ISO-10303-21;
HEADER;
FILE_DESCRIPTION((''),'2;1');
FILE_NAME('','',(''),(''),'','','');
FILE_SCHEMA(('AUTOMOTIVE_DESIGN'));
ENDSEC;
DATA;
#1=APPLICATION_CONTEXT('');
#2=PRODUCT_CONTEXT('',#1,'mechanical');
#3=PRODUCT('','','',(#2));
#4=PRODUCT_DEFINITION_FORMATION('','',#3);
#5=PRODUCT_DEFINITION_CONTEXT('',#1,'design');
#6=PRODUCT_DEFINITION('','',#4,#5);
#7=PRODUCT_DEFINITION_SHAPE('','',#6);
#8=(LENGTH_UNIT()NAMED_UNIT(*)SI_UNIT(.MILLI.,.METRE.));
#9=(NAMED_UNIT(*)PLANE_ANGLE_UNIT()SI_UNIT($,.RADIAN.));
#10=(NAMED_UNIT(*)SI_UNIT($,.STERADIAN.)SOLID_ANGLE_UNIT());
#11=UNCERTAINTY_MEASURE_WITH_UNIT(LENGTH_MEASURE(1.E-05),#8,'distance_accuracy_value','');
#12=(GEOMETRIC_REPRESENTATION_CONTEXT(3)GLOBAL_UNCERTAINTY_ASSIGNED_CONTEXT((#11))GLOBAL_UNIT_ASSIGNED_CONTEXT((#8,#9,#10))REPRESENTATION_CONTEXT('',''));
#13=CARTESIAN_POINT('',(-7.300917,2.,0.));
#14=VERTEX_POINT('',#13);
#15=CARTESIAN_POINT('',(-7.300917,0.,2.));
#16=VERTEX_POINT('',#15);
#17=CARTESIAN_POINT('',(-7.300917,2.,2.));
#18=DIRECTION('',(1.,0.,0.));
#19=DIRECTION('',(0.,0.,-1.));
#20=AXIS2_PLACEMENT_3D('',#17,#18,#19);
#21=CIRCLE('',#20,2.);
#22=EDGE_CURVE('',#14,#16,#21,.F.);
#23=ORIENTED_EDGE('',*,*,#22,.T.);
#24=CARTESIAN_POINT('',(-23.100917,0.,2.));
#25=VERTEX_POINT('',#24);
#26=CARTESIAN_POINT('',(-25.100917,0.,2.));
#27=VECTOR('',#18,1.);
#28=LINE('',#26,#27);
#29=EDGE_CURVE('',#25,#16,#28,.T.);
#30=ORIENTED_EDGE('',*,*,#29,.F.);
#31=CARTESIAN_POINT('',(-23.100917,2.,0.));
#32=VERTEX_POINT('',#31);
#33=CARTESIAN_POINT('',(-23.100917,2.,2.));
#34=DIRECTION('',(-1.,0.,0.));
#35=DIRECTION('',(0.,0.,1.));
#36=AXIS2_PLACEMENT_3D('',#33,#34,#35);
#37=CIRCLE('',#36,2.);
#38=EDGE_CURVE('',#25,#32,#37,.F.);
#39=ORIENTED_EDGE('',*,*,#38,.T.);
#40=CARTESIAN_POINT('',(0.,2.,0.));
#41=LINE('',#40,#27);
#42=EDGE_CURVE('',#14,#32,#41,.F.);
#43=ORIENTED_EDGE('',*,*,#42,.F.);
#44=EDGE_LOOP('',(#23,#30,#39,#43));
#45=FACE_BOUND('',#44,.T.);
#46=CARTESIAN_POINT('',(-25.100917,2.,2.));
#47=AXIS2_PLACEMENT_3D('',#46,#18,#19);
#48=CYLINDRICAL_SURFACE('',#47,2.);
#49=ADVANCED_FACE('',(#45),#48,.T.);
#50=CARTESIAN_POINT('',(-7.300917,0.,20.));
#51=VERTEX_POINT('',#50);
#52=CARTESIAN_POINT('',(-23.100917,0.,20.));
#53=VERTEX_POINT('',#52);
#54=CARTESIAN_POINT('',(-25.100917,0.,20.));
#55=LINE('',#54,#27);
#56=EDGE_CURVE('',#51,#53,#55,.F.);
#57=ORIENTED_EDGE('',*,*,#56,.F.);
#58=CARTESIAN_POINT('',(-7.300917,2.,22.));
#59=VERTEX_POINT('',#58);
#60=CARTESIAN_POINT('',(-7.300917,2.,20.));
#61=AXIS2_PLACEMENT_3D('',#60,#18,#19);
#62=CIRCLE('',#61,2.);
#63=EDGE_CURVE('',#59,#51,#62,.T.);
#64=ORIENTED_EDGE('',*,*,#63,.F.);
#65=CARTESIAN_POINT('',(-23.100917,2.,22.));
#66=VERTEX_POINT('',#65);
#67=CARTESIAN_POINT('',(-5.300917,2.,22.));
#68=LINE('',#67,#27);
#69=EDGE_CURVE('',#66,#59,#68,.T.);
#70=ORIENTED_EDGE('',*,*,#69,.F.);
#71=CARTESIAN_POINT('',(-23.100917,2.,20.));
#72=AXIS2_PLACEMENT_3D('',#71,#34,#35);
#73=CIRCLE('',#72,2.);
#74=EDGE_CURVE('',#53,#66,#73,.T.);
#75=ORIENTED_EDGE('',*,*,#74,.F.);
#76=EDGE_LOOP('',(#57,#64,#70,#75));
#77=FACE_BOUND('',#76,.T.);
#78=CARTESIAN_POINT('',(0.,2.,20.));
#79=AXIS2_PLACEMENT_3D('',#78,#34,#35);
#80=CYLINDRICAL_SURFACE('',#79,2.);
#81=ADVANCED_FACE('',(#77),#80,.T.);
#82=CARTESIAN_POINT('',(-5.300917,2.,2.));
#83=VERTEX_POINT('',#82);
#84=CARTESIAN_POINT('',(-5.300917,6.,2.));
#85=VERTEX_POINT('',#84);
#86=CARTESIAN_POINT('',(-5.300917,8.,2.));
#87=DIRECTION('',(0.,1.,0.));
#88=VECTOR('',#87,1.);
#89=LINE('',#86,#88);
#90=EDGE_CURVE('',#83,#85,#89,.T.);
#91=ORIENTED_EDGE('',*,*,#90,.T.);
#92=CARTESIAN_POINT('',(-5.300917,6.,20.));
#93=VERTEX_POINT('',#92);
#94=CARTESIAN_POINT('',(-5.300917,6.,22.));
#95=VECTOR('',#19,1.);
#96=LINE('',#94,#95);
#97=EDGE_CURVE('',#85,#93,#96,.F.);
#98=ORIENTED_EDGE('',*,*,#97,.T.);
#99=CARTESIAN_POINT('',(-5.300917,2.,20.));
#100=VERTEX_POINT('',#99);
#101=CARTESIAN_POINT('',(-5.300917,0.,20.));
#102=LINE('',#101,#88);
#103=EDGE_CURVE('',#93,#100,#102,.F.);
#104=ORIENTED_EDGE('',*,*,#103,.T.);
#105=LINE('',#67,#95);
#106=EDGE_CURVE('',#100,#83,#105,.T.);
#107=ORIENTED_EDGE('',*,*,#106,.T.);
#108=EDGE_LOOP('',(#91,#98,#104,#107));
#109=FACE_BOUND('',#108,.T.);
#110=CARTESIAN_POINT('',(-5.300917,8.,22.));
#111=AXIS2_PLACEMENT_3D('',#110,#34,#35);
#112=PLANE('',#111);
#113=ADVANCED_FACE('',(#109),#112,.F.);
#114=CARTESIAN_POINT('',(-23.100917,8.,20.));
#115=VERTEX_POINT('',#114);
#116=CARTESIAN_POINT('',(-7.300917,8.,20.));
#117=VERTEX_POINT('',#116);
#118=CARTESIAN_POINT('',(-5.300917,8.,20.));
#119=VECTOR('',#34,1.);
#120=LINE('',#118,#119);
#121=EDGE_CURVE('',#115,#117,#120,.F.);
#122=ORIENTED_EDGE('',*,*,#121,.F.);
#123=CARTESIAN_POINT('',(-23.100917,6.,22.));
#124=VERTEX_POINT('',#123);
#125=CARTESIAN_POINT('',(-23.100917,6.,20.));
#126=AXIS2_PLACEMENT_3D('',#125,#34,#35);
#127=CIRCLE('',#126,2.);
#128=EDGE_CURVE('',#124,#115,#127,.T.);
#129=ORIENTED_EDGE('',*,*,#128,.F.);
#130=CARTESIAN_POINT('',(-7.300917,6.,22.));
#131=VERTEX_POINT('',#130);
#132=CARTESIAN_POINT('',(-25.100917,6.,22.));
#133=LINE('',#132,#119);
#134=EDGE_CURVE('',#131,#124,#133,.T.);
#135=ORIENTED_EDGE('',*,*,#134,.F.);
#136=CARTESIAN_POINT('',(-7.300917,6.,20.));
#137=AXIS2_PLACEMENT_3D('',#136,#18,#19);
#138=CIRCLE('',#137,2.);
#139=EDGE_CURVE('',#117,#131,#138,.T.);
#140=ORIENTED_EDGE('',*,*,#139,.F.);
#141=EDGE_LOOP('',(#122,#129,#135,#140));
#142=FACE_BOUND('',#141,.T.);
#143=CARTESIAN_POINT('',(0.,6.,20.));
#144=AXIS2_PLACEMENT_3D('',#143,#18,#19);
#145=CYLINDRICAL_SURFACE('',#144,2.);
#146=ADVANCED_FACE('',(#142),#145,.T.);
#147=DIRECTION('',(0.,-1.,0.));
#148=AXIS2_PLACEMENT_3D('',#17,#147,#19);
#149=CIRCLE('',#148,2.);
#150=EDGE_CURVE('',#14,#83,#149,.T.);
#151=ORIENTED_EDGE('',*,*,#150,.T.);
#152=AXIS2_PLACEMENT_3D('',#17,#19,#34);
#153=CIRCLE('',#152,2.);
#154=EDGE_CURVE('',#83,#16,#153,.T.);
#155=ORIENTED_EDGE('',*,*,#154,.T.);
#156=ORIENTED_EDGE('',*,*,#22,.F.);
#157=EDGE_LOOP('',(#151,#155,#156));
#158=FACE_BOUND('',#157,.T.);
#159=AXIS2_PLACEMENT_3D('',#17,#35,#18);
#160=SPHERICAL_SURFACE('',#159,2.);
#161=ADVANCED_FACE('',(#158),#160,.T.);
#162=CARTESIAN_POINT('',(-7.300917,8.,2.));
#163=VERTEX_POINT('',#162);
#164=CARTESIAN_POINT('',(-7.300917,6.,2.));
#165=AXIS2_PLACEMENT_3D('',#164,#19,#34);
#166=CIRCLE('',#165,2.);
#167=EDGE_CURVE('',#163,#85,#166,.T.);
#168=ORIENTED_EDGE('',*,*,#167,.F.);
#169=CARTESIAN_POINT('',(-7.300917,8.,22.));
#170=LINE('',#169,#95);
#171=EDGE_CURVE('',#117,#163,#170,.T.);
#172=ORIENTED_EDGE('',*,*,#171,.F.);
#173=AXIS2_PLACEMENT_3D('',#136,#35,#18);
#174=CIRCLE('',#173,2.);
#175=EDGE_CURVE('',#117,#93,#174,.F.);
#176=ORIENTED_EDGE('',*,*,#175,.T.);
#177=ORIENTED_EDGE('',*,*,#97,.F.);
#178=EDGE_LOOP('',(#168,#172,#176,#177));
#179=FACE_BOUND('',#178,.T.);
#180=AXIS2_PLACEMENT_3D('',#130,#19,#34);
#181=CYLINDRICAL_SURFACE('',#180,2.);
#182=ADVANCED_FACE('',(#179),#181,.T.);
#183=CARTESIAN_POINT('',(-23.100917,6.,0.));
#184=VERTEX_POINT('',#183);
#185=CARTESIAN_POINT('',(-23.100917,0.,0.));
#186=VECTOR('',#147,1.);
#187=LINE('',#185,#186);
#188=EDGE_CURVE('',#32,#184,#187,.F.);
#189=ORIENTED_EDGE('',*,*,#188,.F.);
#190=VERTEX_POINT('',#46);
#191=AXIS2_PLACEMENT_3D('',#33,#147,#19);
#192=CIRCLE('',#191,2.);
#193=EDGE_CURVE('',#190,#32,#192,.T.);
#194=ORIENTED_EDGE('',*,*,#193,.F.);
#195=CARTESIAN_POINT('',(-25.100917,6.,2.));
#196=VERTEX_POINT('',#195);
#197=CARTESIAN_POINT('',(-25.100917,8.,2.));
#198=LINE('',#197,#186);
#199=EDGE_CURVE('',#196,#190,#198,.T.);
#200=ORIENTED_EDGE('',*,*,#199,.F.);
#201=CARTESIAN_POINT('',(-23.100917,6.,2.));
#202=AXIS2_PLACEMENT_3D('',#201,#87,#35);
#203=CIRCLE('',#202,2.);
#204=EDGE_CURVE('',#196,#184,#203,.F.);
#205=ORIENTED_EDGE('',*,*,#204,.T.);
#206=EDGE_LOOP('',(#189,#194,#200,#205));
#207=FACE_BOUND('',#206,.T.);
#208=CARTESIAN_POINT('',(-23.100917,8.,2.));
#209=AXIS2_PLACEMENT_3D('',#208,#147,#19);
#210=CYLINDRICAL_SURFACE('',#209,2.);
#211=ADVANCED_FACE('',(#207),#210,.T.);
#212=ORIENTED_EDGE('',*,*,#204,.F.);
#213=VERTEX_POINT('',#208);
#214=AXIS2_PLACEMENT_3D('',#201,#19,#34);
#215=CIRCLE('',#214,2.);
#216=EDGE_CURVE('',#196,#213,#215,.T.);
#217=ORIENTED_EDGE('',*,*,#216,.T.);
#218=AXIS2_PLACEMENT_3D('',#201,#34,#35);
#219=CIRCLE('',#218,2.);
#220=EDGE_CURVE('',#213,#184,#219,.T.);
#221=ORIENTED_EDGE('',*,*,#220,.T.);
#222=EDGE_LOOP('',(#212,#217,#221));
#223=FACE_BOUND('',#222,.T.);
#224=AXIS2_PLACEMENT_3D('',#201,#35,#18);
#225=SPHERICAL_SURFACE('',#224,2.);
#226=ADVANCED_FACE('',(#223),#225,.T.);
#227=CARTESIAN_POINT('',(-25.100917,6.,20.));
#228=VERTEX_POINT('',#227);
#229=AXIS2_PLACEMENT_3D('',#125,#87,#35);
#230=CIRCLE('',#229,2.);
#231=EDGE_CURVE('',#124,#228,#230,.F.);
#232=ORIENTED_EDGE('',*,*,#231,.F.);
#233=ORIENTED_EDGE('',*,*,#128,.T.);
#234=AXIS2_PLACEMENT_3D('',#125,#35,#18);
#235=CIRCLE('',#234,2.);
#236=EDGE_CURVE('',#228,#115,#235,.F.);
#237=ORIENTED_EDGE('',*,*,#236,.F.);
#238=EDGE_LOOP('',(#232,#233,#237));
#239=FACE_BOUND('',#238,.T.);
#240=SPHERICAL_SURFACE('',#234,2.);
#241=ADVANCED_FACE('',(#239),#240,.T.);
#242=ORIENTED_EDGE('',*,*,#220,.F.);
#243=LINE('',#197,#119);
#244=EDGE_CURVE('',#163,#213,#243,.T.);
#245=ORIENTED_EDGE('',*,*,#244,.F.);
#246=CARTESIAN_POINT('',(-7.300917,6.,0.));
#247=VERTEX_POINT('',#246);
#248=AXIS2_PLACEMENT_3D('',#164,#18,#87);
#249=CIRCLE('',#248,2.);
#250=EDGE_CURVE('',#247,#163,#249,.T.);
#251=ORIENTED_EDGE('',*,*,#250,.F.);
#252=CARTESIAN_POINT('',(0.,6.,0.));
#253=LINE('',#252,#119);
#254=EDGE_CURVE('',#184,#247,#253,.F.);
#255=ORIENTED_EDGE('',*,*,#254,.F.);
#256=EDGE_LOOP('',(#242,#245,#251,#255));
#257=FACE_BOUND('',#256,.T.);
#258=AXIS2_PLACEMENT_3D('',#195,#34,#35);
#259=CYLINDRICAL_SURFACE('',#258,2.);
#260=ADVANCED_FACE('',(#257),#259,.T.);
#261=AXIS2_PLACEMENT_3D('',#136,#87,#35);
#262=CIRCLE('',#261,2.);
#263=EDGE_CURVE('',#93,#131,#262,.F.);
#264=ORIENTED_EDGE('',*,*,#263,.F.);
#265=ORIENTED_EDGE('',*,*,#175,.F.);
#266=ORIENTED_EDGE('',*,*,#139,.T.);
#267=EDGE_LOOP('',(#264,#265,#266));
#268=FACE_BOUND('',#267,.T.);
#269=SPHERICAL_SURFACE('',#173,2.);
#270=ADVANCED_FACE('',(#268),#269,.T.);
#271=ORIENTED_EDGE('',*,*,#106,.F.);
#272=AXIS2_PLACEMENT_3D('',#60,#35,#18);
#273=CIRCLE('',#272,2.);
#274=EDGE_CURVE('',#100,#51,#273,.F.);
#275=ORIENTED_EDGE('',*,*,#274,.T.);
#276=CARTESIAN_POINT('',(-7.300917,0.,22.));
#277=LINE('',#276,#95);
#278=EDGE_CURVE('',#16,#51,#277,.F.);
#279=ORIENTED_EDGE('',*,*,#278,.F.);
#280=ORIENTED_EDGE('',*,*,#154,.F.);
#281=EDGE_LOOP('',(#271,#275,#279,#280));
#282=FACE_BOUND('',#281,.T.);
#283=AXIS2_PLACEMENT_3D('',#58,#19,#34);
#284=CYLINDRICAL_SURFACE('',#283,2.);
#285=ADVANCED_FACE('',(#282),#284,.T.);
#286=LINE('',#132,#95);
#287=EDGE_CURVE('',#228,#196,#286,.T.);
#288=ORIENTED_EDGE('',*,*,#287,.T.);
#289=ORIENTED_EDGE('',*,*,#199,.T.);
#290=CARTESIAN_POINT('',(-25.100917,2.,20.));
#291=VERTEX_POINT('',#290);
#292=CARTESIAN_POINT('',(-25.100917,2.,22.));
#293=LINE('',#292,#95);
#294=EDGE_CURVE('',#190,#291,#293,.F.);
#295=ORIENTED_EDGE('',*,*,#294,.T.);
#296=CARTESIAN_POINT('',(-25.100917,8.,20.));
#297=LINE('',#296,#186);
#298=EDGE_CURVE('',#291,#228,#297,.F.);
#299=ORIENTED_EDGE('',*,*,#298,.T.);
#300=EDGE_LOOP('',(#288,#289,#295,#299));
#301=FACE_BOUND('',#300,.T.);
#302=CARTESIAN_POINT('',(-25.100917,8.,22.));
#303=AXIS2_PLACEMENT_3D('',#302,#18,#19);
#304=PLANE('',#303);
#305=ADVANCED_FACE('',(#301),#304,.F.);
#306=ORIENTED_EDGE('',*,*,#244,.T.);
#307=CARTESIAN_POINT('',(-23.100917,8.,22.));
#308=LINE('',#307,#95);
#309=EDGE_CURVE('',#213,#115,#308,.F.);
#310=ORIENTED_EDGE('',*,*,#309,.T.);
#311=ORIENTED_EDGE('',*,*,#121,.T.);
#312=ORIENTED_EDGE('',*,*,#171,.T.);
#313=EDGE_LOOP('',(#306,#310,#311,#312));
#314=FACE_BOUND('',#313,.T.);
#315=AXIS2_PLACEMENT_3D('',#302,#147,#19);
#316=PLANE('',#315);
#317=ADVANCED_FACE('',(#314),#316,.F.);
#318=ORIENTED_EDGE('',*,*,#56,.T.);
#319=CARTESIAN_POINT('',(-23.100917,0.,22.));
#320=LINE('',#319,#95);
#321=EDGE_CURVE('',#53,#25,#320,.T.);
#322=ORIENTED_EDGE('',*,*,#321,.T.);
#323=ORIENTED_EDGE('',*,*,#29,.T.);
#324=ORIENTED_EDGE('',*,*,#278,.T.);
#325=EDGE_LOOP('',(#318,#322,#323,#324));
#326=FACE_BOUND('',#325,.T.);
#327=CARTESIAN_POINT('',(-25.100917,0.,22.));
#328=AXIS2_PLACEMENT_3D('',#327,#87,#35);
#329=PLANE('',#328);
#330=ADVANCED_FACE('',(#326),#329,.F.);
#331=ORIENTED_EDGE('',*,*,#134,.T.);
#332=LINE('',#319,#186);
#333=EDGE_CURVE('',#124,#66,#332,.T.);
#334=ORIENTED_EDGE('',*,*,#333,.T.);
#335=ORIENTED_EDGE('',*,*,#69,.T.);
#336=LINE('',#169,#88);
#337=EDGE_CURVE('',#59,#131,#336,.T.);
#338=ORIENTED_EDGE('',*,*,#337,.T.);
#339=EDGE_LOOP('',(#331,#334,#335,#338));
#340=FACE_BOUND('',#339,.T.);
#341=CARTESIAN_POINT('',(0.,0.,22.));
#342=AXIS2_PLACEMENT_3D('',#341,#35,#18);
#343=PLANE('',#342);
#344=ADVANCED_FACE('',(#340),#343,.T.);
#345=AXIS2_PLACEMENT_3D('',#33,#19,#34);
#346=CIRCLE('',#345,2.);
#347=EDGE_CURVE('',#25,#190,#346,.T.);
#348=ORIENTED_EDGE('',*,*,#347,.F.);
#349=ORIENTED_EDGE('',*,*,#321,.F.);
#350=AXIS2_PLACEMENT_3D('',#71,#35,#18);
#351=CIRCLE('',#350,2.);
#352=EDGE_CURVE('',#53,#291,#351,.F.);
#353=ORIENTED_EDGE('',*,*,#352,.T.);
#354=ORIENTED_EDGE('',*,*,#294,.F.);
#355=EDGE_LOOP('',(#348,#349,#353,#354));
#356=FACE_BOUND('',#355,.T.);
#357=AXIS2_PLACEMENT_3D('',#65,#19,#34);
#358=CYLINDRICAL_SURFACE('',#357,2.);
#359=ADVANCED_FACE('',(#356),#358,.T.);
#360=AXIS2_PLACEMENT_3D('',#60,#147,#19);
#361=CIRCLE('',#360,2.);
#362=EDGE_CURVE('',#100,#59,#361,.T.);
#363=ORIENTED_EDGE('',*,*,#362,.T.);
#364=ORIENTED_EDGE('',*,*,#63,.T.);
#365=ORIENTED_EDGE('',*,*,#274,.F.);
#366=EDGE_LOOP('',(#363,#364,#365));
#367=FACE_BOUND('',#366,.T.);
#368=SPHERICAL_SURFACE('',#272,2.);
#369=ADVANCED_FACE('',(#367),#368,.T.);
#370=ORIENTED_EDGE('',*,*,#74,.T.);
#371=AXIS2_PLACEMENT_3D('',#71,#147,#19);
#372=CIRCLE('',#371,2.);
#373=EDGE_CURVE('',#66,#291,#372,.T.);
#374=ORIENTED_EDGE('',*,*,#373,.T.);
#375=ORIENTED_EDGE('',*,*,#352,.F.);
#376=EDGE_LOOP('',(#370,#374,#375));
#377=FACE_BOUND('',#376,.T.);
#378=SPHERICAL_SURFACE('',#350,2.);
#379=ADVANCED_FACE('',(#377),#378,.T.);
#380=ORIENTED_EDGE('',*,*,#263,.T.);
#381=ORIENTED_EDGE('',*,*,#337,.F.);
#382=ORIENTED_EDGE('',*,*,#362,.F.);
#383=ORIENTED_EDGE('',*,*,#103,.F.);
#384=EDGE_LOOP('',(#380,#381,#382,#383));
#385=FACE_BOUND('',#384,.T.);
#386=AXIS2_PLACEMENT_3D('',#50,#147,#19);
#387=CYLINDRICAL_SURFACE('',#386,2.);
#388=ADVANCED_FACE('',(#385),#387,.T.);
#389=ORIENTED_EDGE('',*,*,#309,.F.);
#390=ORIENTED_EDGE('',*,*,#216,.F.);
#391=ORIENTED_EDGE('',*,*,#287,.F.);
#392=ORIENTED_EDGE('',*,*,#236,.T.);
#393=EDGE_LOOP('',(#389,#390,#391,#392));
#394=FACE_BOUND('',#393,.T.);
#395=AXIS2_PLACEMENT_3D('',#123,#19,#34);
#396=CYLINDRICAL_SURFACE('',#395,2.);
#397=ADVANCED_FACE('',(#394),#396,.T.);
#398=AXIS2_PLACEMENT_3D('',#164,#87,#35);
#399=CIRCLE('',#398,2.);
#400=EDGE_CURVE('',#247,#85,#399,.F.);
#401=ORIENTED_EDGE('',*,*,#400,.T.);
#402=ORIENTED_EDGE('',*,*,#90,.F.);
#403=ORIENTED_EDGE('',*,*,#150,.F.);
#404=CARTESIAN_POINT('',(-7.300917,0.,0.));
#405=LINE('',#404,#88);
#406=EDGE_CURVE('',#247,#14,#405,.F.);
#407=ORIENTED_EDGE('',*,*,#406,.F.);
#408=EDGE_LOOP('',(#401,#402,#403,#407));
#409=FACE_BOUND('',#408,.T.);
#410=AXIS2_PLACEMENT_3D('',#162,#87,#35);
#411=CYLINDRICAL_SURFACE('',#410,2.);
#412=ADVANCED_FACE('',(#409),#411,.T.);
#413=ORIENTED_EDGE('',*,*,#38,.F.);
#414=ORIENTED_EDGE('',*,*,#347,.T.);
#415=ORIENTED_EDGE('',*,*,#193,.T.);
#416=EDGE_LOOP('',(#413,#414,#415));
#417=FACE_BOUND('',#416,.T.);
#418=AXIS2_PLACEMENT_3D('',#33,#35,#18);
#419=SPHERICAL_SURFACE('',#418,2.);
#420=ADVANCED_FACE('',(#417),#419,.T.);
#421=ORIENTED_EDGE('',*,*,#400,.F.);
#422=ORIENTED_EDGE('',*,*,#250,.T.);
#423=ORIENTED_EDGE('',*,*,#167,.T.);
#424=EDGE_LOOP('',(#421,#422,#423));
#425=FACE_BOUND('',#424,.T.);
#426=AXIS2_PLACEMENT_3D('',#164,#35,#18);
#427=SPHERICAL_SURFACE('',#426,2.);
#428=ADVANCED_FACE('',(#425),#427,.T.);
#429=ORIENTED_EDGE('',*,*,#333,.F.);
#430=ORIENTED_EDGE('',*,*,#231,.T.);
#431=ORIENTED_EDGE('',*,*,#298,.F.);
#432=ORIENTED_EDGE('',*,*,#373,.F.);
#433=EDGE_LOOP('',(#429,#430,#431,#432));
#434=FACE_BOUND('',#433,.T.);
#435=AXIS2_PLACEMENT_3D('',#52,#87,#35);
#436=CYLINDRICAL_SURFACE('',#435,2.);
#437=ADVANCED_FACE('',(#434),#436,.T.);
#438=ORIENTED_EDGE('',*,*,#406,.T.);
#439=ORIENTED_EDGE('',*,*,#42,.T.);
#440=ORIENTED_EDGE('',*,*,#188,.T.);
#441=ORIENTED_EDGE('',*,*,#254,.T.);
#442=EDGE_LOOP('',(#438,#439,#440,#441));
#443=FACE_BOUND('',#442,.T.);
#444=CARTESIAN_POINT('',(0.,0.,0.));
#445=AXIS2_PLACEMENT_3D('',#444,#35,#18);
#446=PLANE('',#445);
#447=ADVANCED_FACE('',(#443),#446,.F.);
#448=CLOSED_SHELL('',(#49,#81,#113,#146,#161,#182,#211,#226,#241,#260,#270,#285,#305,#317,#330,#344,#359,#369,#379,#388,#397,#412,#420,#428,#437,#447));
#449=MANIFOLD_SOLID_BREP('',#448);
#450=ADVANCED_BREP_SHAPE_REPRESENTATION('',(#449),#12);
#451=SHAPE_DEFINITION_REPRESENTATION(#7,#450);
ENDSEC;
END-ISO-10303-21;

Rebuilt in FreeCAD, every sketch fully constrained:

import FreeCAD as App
import Part
import Sketcher
from FreeCAD import Vector
Q = App.Units.Quantity

doc = App.newDocument("Part")
body = doc.addObject("PartDesign::Body", "Body")

# Sketch on XY plane
sketch1 = body.newObject("Sketcher::SketchObject", "Sketch")
sketch1.AttachmentSupport = (doc.getObject("XY_Plane"), [""])
sketch1.MapMode = "FlatFace"
sketch1.addGeometry([
    Part.LineSegment(Vector(-25, 8, 0), Vector(-25, 0, 0)),
    Part.LineSegment(Vector(-25, 0, 0), Vector(-5, 0, 0)),
    Part.LineSegment(Vector(-5, 0, 0), Vector(-5, 8, 0)),
    Part.LineSegment(Vector(-5, 8, 0), Vector(-25, 8, 0)),
], False)
sketch1.addConstraint([
    Sketcher.Constraint("Coincident", 0, 2, 1, 1),
    Sketcher.Constraint("Coincident", 1, 2, 2, 1),
    Sketcher.Constraint("Coincident", 2, 2, 3, 1),
    Sketcher.Constraint("Coincident", 3, 2, 0, 1),
    Sketcher.Constraint("Vertical", 0),
    Sketcher.Constraint("Horizontal", 1),
    Sketcher.Constraint("Vertical", 2),
    Sketcher.Constraint("Horizontal", 3),
    Sketcher.Constraint("PointOnObject", 0, 2, -1),
    Sketcher.Constraint("DistanceY", 0, 2, 0, 1, Q("8 mm")),
    Sketcher.Constraint("DistanceX", 1, 1, 1, 2, Q("19.8 mm")),
    Sketcher.Constraint("DistanceX", 0, 2, -1, 1, Q("25.100917 mm")),
])
pad1 = body.newObject("PartDesign::Pad", "Pad")
pad1.Profile = sketch1
pad1.Length = 22
doc.recompute()

fillet = body.newObject("PartDesign::Fillet", "Fillet")
fillet.Base = (pad1, ["Edge1"])
fillet.UseAllEdges = True
fillet.Radius = 2

doc.recompute()
